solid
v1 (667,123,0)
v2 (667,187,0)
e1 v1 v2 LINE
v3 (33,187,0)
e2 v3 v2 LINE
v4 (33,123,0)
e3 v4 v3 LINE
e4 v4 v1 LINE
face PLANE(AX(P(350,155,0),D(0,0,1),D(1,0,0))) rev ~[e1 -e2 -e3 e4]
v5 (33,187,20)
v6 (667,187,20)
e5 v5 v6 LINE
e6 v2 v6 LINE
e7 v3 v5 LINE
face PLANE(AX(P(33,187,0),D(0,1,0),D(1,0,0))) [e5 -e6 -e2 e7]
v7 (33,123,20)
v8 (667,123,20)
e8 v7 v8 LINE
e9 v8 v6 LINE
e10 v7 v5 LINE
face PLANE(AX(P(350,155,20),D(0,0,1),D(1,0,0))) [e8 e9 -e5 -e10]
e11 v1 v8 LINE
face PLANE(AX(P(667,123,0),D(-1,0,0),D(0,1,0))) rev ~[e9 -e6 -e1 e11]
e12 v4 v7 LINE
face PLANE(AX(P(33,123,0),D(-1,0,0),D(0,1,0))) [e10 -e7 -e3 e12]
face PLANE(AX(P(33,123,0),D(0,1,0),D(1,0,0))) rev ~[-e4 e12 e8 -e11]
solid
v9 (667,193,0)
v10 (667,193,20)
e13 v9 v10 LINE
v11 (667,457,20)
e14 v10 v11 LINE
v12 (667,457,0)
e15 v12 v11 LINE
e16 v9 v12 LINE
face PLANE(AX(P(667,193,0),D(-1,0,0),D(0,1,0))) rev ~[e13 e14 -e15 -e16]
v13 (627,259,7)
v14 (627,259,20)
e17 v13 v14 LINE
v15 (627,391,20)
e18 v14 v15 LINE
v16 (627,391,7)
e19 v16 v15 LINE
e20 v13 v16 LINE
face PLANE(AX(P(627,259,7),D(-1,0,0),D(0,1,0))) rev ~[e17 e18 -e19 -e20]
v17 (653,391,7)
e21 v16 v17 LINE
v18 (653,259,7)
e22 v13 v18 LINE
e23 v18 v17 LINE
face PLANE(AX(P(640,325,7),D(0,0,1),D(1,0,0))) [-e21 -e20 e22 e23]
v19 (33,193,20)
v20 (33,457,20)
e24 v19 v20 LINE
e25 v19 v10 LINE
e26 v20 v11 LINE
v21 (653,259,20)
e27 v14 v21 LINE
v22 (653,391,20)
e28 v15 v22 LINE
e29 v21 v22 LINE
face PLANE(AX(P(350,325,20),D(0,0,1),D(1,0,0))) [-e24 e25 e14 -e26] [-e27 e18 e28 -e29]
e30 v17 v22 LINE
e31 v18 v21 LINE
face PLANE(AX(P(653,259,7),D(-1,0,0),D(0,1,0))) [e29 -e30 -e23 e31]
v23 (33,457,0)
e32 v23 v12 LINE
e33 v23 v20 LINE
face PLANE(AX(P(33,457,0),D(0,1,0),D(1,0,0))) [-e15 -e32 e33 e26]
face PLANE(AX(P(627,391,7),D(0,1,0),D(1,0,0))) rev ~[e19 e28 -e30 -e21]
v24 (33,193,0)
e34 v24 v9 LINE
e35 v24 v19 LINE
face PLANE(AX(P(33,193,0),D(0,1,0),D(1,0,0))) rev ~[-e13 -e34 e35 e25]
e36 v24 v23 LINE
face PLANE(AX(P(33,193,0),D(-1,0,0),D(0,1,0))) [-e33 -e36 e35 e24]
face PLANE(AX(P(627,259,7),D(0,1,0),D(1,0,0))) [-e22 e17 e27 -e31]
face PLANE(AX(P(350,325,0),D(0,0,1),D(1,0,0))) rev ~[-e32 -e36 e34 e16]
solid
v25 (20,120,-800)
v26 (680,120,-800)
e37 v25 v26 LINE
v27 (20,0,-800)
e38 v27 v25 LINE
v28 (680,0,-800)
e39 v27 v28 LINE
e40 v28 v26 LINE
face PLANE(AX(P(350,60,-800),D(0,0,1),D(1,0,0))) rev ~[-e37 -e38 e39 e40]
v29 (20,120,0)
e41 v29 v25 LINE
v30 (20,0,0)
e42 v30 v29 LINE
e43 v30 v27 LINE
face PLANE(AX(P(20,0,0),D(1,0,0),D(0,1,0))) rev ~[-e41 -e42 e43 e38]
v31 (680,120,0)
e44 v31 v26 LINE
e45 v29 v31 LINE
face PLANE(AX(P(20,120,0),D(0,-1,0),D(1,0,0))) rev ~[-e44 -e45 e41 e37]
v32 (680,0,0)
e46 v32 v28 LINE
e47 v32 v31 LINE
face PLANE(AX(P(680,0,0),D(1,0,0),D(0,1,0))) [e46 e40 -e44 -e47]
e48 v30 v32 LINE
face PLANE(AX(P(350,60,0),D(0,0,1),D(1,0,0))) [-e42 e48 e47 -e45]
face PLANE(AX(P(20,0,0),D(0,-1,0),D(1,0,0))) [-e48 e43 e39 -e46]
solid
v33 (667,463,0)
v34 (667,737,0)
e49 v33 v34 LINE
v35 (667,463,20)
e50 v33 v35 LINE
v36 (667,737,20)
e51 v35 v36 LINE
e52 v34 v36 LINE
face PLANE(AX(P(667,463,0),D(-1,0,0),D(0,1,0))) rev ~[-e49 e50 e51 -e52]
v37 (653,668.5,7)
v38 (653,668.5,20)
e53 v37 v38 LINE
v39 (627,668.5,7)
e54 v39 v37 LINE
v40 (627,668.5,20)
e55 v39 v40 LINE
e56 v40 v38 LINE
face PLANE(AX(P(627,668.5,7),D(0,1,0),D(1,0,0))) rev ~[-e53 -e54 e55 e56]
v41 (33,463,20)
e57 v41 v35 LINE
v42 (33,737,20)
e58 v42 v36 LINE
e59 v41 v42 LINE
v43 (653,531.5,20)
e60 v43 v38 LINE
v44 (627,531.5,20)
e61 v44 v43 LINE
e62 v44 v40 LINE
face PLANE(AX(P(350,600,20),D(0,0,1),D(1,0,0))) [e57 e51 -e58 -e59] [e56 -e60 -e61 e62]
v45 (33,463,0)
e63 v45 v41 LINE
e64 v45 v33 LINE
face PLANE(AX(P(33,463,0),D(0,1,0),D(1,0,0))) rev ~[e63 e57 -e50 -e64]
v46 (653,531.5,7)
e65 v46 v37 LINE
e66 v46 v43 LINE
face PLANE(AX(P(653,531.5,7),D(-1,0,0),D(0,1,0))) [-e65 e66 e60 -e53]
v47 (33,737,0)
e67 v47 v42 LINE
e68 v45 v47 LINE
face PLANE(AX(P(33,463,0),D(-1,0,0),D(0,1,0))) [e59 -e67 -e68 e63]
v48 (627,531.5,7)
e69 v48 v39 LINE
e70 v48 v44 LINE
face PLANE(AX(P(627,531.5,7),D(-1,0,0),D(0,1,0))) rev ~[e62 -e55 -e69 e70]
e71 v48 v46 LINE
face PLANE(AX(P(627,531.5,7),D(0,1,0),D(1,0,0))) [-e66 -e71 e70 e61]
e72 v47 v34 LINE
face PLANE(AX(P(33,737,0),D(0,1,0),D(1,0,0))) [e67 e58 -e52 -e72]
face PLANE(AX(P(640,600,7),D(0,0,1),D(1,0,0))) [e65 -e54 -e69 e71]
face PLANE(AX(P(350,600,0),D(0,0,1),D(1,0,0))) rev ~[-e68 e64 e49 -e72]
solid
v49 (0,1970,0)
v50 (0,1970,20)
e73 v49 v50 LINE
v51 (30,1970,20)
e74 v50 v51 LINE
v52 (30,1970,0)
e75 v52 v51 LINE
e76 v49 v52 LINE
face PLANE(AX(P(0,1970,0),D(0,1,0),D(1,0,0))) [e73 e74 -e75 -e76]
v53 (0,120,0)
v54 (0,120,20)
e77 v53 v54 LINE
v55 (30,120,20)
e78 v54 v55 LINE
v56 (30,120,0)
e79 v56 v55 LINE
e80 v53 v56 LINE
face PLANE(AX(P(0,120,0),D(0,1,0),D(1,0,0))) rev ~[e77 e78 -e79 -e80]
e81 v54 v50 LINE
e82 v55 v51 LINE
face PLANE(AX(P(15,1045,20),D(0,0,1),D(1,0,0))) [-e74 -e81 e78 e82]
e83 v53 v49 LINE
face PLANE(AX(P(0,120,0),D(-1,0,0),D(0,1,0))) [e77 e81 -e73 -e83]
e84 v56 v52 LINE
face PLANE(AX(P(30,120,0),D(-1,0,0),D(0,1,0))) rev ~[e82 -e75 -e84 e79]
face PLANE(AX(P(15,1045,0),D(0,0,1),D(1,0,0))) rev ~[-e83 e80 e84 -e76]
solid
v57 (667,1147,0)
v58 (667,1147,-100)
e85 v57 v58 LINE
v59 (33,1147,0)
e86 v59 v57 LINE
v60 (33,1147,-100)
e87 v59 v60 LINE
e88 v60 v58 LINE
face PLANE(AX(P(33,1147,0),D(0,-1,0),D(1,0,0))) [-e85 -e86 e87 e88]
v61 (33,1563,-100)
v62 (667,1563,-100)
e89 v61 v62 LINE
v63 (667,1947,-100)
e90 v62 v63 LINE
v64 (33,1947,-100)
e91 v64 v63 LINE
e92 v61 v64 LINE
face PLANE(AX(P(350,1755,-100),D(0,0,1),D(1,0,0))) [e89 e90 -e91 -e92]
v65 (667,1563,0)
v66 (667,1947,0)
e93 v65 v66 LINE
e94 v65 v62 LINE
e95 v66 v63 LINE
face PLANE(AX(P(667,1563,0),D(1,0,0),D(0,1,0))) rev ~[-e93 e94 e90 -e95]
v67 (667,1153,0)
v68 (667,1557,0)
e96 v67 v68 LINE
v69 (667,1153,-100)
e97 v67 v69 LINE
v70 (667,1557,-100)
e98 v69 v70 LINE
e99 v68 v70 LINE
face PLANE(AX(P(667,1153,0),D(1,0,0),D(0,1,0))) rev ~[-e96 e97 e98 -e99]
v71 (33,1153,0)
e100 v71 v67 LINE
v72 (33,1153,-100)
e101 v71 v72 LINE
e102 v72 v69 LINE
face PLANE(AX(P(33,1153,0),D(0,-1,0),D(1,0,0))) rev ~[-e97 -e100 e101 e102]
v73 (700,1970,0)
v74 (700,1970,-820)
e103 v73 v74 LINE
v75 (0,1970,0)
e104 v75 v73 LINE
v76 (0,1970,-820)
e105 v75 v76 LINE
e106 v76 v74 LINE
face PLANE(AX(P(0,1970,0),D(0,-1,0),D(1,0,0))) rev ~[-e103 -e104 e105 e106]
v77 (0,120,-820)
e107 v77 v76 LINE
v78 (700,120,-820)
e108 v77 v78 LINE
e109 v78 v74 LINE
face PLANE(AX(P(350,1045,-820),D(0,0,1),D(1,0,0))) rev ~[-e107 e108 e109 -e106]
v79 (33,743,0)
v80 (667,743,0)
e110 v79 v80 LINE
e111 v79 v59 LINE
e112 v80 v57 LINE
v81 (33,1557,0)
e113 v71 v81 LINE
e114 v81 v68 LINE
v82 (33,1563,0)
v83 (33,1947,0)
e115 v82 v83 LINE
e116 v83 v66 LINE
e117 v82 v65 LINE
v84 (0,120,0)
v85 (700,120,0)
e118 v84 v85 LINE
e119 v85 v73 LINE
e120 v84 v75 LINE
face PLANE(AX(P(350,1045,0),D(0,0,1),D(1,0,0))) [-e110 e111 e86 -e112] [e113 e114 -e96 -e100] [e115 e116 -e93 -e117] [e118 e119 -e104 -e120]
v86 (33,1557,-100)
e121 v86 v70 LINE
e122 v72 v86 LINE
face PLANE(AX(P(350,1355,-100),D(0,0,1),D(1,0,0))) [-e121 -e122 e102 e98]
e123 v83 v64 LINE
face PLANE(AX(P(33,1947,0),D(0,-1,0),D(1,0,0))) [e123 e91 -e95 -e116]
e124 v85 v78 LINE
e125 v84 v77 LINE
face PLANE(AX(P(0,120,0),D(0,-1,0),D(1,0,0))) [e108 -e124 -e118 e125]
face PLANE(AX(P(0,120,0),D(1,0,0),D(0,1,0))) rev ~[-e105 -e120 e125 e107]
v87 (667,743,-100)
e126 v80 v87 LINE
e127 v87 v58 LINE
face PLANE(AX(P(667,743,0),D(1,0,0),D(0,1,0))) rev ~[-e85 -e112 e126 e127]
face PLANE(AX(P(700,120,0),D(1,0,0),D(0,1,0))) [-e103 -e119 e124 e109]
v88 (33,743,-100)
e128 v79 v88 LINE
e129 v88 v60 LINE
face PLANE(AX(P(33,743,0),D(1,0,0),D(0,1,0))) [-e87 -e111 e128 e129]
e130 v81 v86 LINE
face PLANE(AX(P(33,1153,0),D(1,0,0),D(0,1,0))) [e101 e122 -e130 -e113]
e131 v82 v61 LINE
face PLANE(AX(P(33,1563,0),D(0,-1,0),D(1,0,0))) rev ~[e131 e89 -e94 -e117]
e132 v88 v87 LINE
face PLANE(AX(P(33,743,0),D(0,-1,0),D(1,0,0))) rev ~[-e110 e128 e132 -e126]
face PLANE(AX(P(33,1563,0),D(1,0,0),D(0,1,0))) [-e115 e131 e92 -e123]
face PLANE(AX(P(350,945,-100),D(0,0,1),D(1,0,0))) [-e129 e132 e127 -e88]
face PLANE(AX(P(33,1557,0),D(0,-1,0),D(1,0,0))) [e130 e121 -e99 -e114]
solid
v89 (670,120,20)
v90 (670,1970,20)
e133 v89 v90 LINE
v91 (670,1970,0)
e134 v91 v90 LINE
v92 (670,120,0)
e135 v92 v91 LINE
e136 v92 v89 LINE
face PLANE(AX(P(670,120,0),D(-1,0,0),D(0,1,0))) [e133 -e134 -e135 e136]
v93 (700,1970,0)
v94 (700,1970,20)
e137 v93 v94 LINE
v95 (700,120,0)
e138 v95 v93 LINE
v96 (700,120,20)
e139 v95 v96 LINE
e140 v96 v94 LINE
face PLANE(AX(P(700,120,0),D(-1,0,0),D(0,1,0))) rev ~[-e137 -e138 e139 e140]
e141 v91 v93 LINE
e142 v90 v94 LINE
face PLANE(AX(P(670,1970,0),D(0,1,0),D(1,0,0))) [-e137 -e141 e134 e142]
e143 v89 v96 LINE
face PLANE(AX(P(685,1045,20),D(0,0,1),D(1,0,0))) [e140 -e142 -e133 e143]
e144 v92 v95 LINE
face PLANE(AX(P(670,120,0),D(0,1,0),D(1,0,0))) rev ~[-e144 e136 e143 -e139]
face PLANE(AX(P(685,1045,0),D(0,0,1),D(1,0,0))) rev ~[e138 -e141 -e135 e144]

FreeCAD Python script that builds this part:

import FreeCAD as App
import Part
import Sketcher

V = App.Vector

doc = App.newDocument("Part")
body = doc.addObject("PartDesign::Body", "Body")

sketch1 = body.newObject("Sketcher::SketchObject", "Sketch")
sketch1.AttachmentSupport = (doc.getObject("XY_Plane"), [""])
sketch1.MapMode = "FlatFace"
sketch1.addGeometry([
    Part.LineSegment(V(0, 1970, 0), V(0, 120, 0)),
    Part.LineSegment(V(0, 120, 0), V(700, 120, 0)),
    Part.LineSegment(V(700, 120, 0), V(700, 1970, 0)),
    Part.LineSegment(V(700, 1970, 0), V(0, 1970, 0)),
], False)
sketch1.addConstraint([
    Sketcher.Constraint("Coincident", 0, 2, 1, 1),
    Sketcher.Constraint("Coincident", 1, 2, 2, 1),
    Sketcher.Constraint("Coincident", 2, 2, 3, 1),
    Sketcher.Constraint("Coincident", 3, 2, 0, 1),
    Sketcher.Constraint("Vertical", 0),
    Sketcher.Constraint("Horizontal", 1),
    Sketcher.Constraint("Vertical", 2),
    Sketcher.Constraint("Horizontal", 3),
    Sketcher.Constraint("PointOnObject", 0, 2, -2),
    Sketcher.Constraint("DistanceX", 1, 1, 1, 2, 700.0),
    Sketcher.Constraint("DistanceY", 0, 2, 0, 1, 1850.0),
    Sketcher.Constraint("DistanceY", -1, 1, 0, 2, 120.0),
])
pad1 = body.newObject("PartDesign::Pad", "Pad")
pad1.Profile = sketch1
pad1.Length = 820
pad1.Reversed = True

sketch2 = body.newObject("Sketcher::SketchObject", "Sketch001")
sketch2.AttachmentSupport = (doc.getObject("XY_Plane"), [""])
sketch2.MapMode = "FlatFace"
sketch2.addGeometry([
    Part.LineSegment(V(33, 1947, 0), V(33, 1563, 0)),
    Part.LineSegment(V(33, 1563, 0), V(667, 1563, 0)),
    Part.LineSegment(V(667, 1563, 0), V(667, 1947, 0)),
    Part.LineSegment(V(667, 1947, 0), V(33, 1947, 0)),
], False)
sketch2.addConstraint([
    Sketcher.Constraint("Coincident", 0, 2, 1, 1),
    Sketcher.Constraint("Coincident", 1, 2, 2, 1),
    Sketcher.Constraint("Coincident", 2, 2, 3, 1),
    Sketcher.Constraint("Coincident", 3, 2, 0, 1),
    Sketcher.Constraint("Vertical", 0),
    Sketcher.Constraint("Horizontal", 1),
    Sketcher.Constraint("Vertical", 2),
    Sketcher.Constraint("Horizontal", 3),
    Sketcher.Constraint("DistanceX", 1, 1, 1, 2, 634.0),
    Sketcher.Constraint("DistanceY", 0, 2, 0, 1, 384.0),
    Sketcher.Constraint("DistanceX", -1, 1, 0, 2, 33.0),
    Sketcher.Constraint("DistanceY", -1, 1, 0, 2, 1563.0),
])
pocket1 = body.newObject("PartDesign::Pocket", "Pocket")
pocket1.Profile = sketch2
pocket1.Length = 100

sketch3 = body.newObject("Sketcher::SketchObject", "Sketch002")
sketch3.AttachmentSupport = (doc.getObject("XY_Plane"), [""])
sketch3.MapMode = "FlatFace"
sketch3.addGeometry([
    Part.LineSegment(V(33, 1557, 0), V(33, 1153, 0)),
    Part.LineSegment(V(33, 1153, 0), V(667, 1153, 0)),
    Part.LineSegment(V(667, 1153, 0), V(667, 1557, 0)),
    Part.LineSegment(V(667, 1557, 0), V(33, 1557, 0)),
], False)
sketch3.addConstraint([
    Sketcher.Constraint("Coincident", 0, 2, 1, 1),
    Sketcher.Constraint("Coincident", 1, 2, 2, 1),
    Sketcher.Constraint("Coincident", 2, 2, 3, 1),
    Sketcher.Constraint("Coincident", 3, 2, 0, 1),
    Sketcher.Constraint("Vertical", 0),
    Sketcher.Constraint("Horizontal", 1),
    Sketcher.Constraint("Vertical", 2),
    Sketcher.Constraint("Horizontal", 3),
    Sketcher.Constraint("DistanceX", 1, 1, 1, 2, 634.0),
    Sketcher.Constraint("DistanceY", 0, 2, 0, 1, 404.0),
    Sketcher.Constraint("DistanceX", -1, 1, 0, 2, 33.0),
    Sketcher.Constraint("DistanceY", -1, 1, 0, 2, 1153.0),
])
pocket2 = body.newObject("PartDesign::Pocket", "Pocket001")
pocket2.Profile = sketch3
pocket2.Length = 100

sketch4 = body.newObject("Sketcher::SketchObject", "Sketch003")
sketch4.AttachmentSupport = (doc.getObject("XY_Plane"), [""])
sketch4.MapMode = "FlatFace"
sketch4.addGeometry([
    Part.LineSegment(V(33, 1147, 0), V(33, 743, 0)),
    Part.LineSegment(V(33, 743, 0), V(667, 743, 0)),
    Part.LineSegment(V(667, 743, 0), V(667, 1147, 0)),
    Part.LineSegment(V(667, 1147, 0), V(33, 1147, 0)),
], False)
sketch4.addConstraint([
    Sketcher.Constraint("Coincident", 0, 2, 1, 1),
    Sketcher.Constraint("Coincident", 1, 2, 2, 1),
    Sketcher.Constraint("Coincident", 2, 2, 3, 1),
    Sketcher.Constraint("Coincident", 3, 2, 0, 1),
    Sketcher.Constraint("Vertical", 0),
    Sketcher.Constraint("Horizontal", 1),
    Sketcher.Constraint("Vertical", 2),
    Sketcher.Constraint("Horizontal", 3),
    Sketcher.Constraint("DistanceX", 1, 1, 1, 2, 634.0),
    Sketcher.Constraint("DistanceY", 0, 2, 0, 1, 404.0),
    Sketcher.Constraint("DistanceX", -1, 1, 0, 2, 33.0),
    Sketcher.Constraint("DistanceY", -1, 1, 0, 2, 743.0),
])
pocket3 = body.newObject("PartDesign::Pocket", "Pocket002")
pocket3.Profile = sketch4
pocket3.Length = 100
body2 = doc.addObject("PartDesign::Body", "Body001")

sketch5 = body2.newObject("Sketcher::SketchObject", "Sketch004")
sketch5.AttachmentSupport = (doc.getObject("XY_Plane001"), [""])
sketch5.MapMode = "FlatFace"
sketch5.addGeometry([
    Part.LineSegment(V(20, 120, 0), V(20, 0, 0)),
    Part.LineSegment(V(20, 0, 0), V(680, 0, 0)),
    Part.LineSegment(V(680, 0, 0), V(680, 120, 0)),
    Part.LineSegment(V(680, 120, 0), V(20, 120, 0)),
], False)
sketch5.addConstraint([
    Sketcher.Constraint("Coincident", 0, 2, 1, 1),
    Sketcher.Constraint("Coincident", 1, 2, 2, 1),
    Sketcher.Constraint("Coincident", 2, 2, 3, 1),
    Sketcher.Constraint("Coincident", 3, 2, 0, 1),
    Sketcher.Constraint("Vertical", 0),
    Sketcher.Constraint("Horizontal", 1),
    Sketcher.Constraint("Vertical", 2),
    Sketcher.Constraint("Horizontal", 3),
    Sketcher.Constraint("PointOnObject", 0, 2, -1),
    Sketcher.Constraint("DistanceX", 1, 1, 1, 2, 660.0),
    Sketcher.Constraint("DistanceY", 0, 2, 0, 1, 120.0),
    Sketcher.Constraint("DistanceX", -1, 1, 0, 2, 20.0),
])
pad2 = body2.newObject("PartDesign::Pad", "Pad001")
pad2.Profile = sketch5
pad2.Length = 800
pad2.Reversed = True
body3 = doc.addObject("PartDesign::Body", "Body002")

sketch6 = body3.newObject("Sketcher::SketchObject", "Sketch005")
sketch6.AttachmentSupport = (doc.getObject("XY_Plane002"), [""])
sketch6.MapMode = "FlatFace"
sketch6.addGeometry([
    Part.LineSegment(V(0, 1970, 0), V(0, 120, 0)),
    Part.LineSegment(V(0, 120, 0), V(30, 120, 0)),
    Part.LineSegment(V(30, 120, 0), V(30, 1970, 0)),
    Part.LineSegment(V(30, 1970, 0), V(0, 1970, 0)),
], False)
sketch6.addConstraint([
    Sketcher.Constraint("Coincident", 0, 2, 1, 1),
    Sketcher.Constraint("Coincident", 1, 2, 2, 1),
    Sketcher.Constraint("Coincident", 2, 2, 3, 1),
    Sketcher.Constraint("Coincident", 3, 2, 0, 1),
    Sketcher.Constraint("Vertical", 0),
    Sketcher.Constraint("Horizontal", 1),
    Sketcher.Constraint("Vertical", 2),
    Sketcher.Constraint("Horizontal", 3),
    Sketcher.Constraint("PointOnObject", 0, 2, -2),
    Sketcher.Constraint("DistanceX", 1, 1, 1, 2, 30.0),
    Sketcher.Constraint("DistanceY", 0, 2, 0, 1, 1850.0),
    Sketcher.Constraint("DistanceY", -1, 1, 0, 2, 120.0),
])
pad3 = body3.newObject("PartDesign::Pad", "Pad002")
pad3.Profile = sketch6
pad3.Length = 20
body4 = doc.addObject("PartDesign::Body", "Body003")

sketch7 = body4.newObject("Sketcher::SketchObject", "Sketch006")
sketch7.AttachmentSupport = (doc.getObject("XY_Plane003"), [""])
sketch7.MapMode = "FlatFace"
sketch7.addGeometry([
    Part.LineSegment(V(670, 1970, 0), V(670, 120, 0)),
    Part.LineSegment(V(670, 120, 0), V(700, 120, 0)),
    Part.LineSegment(V(700, 120, 0), V(700, 1970, 0)),
    Part.LineSegment(V(700, 1970, 0), V(670, 1970, 0)),
], False)
sketch7.addConstraint([
    Sketcher.Constraint("Coincident", 0, 2, 1, 1),
    Sketcher.Constraint("Coincident", 1, 2, 2, 1),
    Sketcher.Constraint("Coincident", 2, 2, 3, 1),
    Sketcher.Constraint("Coincident", 3, 2, 0, 1),
    Sketcher.Constraint("Vertical", 0),
    Sketcher.Constraint("Horizontal", 1),
    Sketcher.Constraint("Vertical", 2),
    Sketcher.Constraint("Horizontal", 3),
    Sketcher.Constraint("DistanceX", 1, 1, 1, 2, 30.0),
    Sketcher.Constraint("DistanceY", 0, 2, 0, 1, 1850.0),
    Sketcher.Constraint("DistanceX", -1, 1, 0, 2, 670.0),
    Sketcher.Constraint("DistanceY", -1, 1, 0, 2, 120.0),
])
pad4 = body4.newObject("PartDesign::Pad", "Pad003")
pad4.Profile = sketch7
pad4.Length = 20
body5 = doc.addObject("PartDesign::Body", "Body004")

sketch8 = body5.newObject("Sketcher::SketchObject", "Sketch007")
sketch8.AttachmentSupport = (doc.getObject("XY_Plane004"), [""])
sketch8.MapMode = "FlatFace"
sketch8.addGeometry([
    Part.LineSegment(V(33, 737, 0), V(33, 463, 0)),
    Part.LineSegment(V(33, 463, 0), V(667, 463, 0)),
    Part.LineSegment(V(667, 463, 0), V(667, 737, 0)),
    Part.LineSegment(V(667, 737, 0), V(33, 737, 0)),
], False)
sketch8.addConstraint([
    Sketcher.Constraint("Coincident", 0, 2, 1, 1),
    Sketcher.Constraint("Coincident", 1, 2, 2, 1),
    Sketcher.Constraint("Coincident", 2, 2, 3, 1),
    Sketcher.Constraint("Coincident", 3, 2, 0, 1),
    Sketcher.Constraint("Vertical", 0),
    Sketcher.Constraint("Horizontal", 1),
    Sketcher.Constraint("Vertical", 2),
    Sketcher.Constraint("Horizontal", 3),
    Sketcher.Constraint("DistanceX", 1, 1, 1, 2, 634.0),
    Sketcher.Constraint("DistanceY", 0, 2, 0, 1, 274.0),
    Sketcher.Constraint("DistanceX", -1, 1, 0, 2, 33.0),
    Sketcher.Constraint("DistanceY", -1, 1, 0, 2, 463.0),
])
pad5 = body5.newObject("PartDesign::Pad", "Pad004")
pad5.Profile = sketch8
pad5.Length = 20

sketch9 = body5.newObject("Sketcher::SketchObject", "Sketch008")
sketch9.AttachmentSupport = (doc.getObject("XY_Plane004"), [""])
sketch9.MapMode = "FlatFace"
sketch9.AttachmentOffset = App.Placement(V(0, 0, 7), App.Rotation())
sketch9.addGeometry([
    Part.LineSegment(V(627, 668, 0), V(627, 532, 0)),
    Part.LineSegment(V(627, 532, 0), V(653, 532, 0)),
    Part.LineSegment(V(653, 532, 0), V(653, 668, 0)),
    Part.LineSegment(V(653, 668, 0), V(627, 668, 0)),
], False)
sketch9.addConstraint([
    Sketcher.Constraint("Coincident", 0, 2, 1, 1),
    Sketcher.Constraint("Coincident", 1, 2, 2, 1),
    Sketcher.Constraint("Coincident", 2, 2, 3, 1),
    Sketcher.Constraint("Coincident", 3, 2, 0, 1),
    Sketcher.Constraint("Vertical", 0),
    Sketcher.Constraint("Horizontal", 1),
    Sketcher.Constraint("Vertical", 2),
    Sketcher.Constraint("Horizontal", 3),
    Sketcher.Constraint("DistanceX", 1, 1, 1, 2, 26.0),
    Sketcher.Constraint("DistanceY", 0, 2, 0, 1, 137.0),
    Sketcher.Constraint("DistanceX", -1, 1, 0, 2, 627.0),
    Sketcher.Constraint("DistanceY", -1, 1, 0, 2, 531.5),
])
pocket4 = body5.newObject("PartDesign::Pocket", "Pocket003")
pocket4.Profile = sketch9
pocket4.Length = 13
pocket4.Reversed = True
body6 = doc.addObject("PartDesign::Body", "Body005")

sketch10 = body6.newObject("Sketcher::SketchObject", "Sketch009")
sketch10.AttachmentSupport = (doc.getObject("XY_Plane005"), [""])
sketch10.MapMode = "FlatFace"
sketch10.addGeometry([
    Part.LineSegment(V(33, 457, 0), V(33, 193, 0)),
    Part.LineSegment(V(33, 193, 0), V(667, 193, 0)),
    Part.LineSegment(V(667, 193, 0), V(667, 457, 0)),
    Part.LineSegment(V(667, 457, 0), V(33, 457, 0)),
], False)
sketch10.addConstraint([
    Sketcher.Constraint("Coincident", 0, 2, 1, 1),
    Sketcher.Constraint("Coincident", 1, 2, 2, 1),
    Sketcher.Constraint("Coincident", 2, 2, 3, 1),
    Sketcher.Constraint("Coincident", 3, 2, 0, 1),
    Sketcher.Constraint("Vertical", 0),
    Sketcher.Constraint("Horizontal", 1),
    Sketcher.Constraint("Vertical", 2),
    Sketcher.Constraint("Horizontal", 3),
    Sketcher.Constraint("DistanceX", 1, 1, 1, 2, 634.0),
    Sketcher.Constraint("DistanceY", 0, 2, 0, 1, 264.0),
    Sketcher.Constraint("DistanceX", -1, 1, 0, 2, 33.0),
    Sketcher.Constraint("DistanceY", -1, 1, 0, 2, 193.0),
])
pad6 = body6.newObject("PartDesign::Pad", "Pad005")
pad6.Profile = sketch10
pad6.Length = 20

sketch11 = body6.newObject("Sketcher::SketchObject", "Sketch010")
sketch11.AttachmentSupport = (doc.getObject("XY_Plane005"), [""])
sketch11.MapMode = "FlatFace"
sketch11.AttachmentOffset = App.Placement(V(0, 0, 7), App.Rotation())
sketch11.addGeometry([
    Part.LineSegment(V(627, 391, 0), V(627, 259, 0)),
    Part.LineSegment(V(627, 259, 0), V(653, 259, 0)),
    Part.LineSegment(V(653, 259, 0), V(653, 391, 0)),
    Part.LineSegment(V(653, 391, 0), V(627, 391, 0)),
], False)
sketch11.addConstraint([
    Sketcher.Constraint("Coincident", 0, 2, 1, 1),
    Sketcher.Constraint("Coincident", 1, 2, 2, 1),
    Sketcher.Constraint("Coincident", 2, 2, 3, 1),
    Sketcher.Constraint("Coincident", 3, 2, 0, 1),
    Sketcher.Constraint("Vertical", 0),
    Sketcher.Constraint("Horizontal", 1),
    Sketcher.Constraint("Vertical", 2),
    Sketcher.Constraint("Horizontal", 3),
    Sketcher.Constraint("DistanceX", 1, 1, 1, 2, 26.0),
    Sketcher.Constraint("DistanceY", 0, 2, 0, 1, 132.0),
    Sketcher.Constraint("DistanceX", -1, 1, 0, 2, 627.0),
    Sketcher.Constraint("DistanceY", -1, 1, 0, 2, 259.0),
])
pocket5 = body6.newObject("PartDesign::Pocket", "Pocket004")
pocket5.Profile = sketch11
pocket5.Length = 13
pocket5.Reversed = True
body7 = doc.addObject("PartDesign::Body", "Body006")

sketch12 = body7.newObject("Sketcher::SketchObject", "Sketch011")
sketch12.AttachmentSupport = (doc.getObject("XY_Plane006"), [""])
sketch12.MapMode = "FlatFace"
sketch12.addGeometry([
    Part.LineSegment(V(33, 187, 0), V(33, 123, 0)),
    Part.LineSegment(V(33, 123, 0), V(667, 123, 0)),
    Part.LineSegment(V(667, 123, 0), V(667, 187, 0)),
    Part.LineSegment(V(667, 187, 0), V(33, 187, 0)),
], False)
sketch12.addConstraint([
    Sketcher.Constraint("Coincident", 0, 2, 1, 1),
    Sketcher.Constraint("Coincident", 1, 2, 2, 1),
    Sketcher.Constraint("Coincident", 2, 2, 3, 1),
    Sketcher.Constraint("Coincident", 3, 2, 0, 1),
    Sketcher.Constraint("Vertical", 0),
    Sketcher.Constraint("Horizontal", 1),
    Sketcher.Constraint("Vertical", 2),
    Sketcher.Constraint("Horizontal", 3),
    Sketcher.Constraint("DistanceX", 1, 1, 1, 2, 634.0),
    Sketcher.Constraint("DistanceY", 0, 2, 0, 1, 64.0),
    Sketcher.Constraint("DistanceX", -1, 1, 0, 2, 33.0),
    Sketcher.Constraint("DistanceY", -1, 1, 0, 2, 123.0),
])
pad7 = body7.newObject("PartDesign::Pad", "Pad006")
pad7.Profile = sketch12
pad7.Length = 20

doc.recompute()
